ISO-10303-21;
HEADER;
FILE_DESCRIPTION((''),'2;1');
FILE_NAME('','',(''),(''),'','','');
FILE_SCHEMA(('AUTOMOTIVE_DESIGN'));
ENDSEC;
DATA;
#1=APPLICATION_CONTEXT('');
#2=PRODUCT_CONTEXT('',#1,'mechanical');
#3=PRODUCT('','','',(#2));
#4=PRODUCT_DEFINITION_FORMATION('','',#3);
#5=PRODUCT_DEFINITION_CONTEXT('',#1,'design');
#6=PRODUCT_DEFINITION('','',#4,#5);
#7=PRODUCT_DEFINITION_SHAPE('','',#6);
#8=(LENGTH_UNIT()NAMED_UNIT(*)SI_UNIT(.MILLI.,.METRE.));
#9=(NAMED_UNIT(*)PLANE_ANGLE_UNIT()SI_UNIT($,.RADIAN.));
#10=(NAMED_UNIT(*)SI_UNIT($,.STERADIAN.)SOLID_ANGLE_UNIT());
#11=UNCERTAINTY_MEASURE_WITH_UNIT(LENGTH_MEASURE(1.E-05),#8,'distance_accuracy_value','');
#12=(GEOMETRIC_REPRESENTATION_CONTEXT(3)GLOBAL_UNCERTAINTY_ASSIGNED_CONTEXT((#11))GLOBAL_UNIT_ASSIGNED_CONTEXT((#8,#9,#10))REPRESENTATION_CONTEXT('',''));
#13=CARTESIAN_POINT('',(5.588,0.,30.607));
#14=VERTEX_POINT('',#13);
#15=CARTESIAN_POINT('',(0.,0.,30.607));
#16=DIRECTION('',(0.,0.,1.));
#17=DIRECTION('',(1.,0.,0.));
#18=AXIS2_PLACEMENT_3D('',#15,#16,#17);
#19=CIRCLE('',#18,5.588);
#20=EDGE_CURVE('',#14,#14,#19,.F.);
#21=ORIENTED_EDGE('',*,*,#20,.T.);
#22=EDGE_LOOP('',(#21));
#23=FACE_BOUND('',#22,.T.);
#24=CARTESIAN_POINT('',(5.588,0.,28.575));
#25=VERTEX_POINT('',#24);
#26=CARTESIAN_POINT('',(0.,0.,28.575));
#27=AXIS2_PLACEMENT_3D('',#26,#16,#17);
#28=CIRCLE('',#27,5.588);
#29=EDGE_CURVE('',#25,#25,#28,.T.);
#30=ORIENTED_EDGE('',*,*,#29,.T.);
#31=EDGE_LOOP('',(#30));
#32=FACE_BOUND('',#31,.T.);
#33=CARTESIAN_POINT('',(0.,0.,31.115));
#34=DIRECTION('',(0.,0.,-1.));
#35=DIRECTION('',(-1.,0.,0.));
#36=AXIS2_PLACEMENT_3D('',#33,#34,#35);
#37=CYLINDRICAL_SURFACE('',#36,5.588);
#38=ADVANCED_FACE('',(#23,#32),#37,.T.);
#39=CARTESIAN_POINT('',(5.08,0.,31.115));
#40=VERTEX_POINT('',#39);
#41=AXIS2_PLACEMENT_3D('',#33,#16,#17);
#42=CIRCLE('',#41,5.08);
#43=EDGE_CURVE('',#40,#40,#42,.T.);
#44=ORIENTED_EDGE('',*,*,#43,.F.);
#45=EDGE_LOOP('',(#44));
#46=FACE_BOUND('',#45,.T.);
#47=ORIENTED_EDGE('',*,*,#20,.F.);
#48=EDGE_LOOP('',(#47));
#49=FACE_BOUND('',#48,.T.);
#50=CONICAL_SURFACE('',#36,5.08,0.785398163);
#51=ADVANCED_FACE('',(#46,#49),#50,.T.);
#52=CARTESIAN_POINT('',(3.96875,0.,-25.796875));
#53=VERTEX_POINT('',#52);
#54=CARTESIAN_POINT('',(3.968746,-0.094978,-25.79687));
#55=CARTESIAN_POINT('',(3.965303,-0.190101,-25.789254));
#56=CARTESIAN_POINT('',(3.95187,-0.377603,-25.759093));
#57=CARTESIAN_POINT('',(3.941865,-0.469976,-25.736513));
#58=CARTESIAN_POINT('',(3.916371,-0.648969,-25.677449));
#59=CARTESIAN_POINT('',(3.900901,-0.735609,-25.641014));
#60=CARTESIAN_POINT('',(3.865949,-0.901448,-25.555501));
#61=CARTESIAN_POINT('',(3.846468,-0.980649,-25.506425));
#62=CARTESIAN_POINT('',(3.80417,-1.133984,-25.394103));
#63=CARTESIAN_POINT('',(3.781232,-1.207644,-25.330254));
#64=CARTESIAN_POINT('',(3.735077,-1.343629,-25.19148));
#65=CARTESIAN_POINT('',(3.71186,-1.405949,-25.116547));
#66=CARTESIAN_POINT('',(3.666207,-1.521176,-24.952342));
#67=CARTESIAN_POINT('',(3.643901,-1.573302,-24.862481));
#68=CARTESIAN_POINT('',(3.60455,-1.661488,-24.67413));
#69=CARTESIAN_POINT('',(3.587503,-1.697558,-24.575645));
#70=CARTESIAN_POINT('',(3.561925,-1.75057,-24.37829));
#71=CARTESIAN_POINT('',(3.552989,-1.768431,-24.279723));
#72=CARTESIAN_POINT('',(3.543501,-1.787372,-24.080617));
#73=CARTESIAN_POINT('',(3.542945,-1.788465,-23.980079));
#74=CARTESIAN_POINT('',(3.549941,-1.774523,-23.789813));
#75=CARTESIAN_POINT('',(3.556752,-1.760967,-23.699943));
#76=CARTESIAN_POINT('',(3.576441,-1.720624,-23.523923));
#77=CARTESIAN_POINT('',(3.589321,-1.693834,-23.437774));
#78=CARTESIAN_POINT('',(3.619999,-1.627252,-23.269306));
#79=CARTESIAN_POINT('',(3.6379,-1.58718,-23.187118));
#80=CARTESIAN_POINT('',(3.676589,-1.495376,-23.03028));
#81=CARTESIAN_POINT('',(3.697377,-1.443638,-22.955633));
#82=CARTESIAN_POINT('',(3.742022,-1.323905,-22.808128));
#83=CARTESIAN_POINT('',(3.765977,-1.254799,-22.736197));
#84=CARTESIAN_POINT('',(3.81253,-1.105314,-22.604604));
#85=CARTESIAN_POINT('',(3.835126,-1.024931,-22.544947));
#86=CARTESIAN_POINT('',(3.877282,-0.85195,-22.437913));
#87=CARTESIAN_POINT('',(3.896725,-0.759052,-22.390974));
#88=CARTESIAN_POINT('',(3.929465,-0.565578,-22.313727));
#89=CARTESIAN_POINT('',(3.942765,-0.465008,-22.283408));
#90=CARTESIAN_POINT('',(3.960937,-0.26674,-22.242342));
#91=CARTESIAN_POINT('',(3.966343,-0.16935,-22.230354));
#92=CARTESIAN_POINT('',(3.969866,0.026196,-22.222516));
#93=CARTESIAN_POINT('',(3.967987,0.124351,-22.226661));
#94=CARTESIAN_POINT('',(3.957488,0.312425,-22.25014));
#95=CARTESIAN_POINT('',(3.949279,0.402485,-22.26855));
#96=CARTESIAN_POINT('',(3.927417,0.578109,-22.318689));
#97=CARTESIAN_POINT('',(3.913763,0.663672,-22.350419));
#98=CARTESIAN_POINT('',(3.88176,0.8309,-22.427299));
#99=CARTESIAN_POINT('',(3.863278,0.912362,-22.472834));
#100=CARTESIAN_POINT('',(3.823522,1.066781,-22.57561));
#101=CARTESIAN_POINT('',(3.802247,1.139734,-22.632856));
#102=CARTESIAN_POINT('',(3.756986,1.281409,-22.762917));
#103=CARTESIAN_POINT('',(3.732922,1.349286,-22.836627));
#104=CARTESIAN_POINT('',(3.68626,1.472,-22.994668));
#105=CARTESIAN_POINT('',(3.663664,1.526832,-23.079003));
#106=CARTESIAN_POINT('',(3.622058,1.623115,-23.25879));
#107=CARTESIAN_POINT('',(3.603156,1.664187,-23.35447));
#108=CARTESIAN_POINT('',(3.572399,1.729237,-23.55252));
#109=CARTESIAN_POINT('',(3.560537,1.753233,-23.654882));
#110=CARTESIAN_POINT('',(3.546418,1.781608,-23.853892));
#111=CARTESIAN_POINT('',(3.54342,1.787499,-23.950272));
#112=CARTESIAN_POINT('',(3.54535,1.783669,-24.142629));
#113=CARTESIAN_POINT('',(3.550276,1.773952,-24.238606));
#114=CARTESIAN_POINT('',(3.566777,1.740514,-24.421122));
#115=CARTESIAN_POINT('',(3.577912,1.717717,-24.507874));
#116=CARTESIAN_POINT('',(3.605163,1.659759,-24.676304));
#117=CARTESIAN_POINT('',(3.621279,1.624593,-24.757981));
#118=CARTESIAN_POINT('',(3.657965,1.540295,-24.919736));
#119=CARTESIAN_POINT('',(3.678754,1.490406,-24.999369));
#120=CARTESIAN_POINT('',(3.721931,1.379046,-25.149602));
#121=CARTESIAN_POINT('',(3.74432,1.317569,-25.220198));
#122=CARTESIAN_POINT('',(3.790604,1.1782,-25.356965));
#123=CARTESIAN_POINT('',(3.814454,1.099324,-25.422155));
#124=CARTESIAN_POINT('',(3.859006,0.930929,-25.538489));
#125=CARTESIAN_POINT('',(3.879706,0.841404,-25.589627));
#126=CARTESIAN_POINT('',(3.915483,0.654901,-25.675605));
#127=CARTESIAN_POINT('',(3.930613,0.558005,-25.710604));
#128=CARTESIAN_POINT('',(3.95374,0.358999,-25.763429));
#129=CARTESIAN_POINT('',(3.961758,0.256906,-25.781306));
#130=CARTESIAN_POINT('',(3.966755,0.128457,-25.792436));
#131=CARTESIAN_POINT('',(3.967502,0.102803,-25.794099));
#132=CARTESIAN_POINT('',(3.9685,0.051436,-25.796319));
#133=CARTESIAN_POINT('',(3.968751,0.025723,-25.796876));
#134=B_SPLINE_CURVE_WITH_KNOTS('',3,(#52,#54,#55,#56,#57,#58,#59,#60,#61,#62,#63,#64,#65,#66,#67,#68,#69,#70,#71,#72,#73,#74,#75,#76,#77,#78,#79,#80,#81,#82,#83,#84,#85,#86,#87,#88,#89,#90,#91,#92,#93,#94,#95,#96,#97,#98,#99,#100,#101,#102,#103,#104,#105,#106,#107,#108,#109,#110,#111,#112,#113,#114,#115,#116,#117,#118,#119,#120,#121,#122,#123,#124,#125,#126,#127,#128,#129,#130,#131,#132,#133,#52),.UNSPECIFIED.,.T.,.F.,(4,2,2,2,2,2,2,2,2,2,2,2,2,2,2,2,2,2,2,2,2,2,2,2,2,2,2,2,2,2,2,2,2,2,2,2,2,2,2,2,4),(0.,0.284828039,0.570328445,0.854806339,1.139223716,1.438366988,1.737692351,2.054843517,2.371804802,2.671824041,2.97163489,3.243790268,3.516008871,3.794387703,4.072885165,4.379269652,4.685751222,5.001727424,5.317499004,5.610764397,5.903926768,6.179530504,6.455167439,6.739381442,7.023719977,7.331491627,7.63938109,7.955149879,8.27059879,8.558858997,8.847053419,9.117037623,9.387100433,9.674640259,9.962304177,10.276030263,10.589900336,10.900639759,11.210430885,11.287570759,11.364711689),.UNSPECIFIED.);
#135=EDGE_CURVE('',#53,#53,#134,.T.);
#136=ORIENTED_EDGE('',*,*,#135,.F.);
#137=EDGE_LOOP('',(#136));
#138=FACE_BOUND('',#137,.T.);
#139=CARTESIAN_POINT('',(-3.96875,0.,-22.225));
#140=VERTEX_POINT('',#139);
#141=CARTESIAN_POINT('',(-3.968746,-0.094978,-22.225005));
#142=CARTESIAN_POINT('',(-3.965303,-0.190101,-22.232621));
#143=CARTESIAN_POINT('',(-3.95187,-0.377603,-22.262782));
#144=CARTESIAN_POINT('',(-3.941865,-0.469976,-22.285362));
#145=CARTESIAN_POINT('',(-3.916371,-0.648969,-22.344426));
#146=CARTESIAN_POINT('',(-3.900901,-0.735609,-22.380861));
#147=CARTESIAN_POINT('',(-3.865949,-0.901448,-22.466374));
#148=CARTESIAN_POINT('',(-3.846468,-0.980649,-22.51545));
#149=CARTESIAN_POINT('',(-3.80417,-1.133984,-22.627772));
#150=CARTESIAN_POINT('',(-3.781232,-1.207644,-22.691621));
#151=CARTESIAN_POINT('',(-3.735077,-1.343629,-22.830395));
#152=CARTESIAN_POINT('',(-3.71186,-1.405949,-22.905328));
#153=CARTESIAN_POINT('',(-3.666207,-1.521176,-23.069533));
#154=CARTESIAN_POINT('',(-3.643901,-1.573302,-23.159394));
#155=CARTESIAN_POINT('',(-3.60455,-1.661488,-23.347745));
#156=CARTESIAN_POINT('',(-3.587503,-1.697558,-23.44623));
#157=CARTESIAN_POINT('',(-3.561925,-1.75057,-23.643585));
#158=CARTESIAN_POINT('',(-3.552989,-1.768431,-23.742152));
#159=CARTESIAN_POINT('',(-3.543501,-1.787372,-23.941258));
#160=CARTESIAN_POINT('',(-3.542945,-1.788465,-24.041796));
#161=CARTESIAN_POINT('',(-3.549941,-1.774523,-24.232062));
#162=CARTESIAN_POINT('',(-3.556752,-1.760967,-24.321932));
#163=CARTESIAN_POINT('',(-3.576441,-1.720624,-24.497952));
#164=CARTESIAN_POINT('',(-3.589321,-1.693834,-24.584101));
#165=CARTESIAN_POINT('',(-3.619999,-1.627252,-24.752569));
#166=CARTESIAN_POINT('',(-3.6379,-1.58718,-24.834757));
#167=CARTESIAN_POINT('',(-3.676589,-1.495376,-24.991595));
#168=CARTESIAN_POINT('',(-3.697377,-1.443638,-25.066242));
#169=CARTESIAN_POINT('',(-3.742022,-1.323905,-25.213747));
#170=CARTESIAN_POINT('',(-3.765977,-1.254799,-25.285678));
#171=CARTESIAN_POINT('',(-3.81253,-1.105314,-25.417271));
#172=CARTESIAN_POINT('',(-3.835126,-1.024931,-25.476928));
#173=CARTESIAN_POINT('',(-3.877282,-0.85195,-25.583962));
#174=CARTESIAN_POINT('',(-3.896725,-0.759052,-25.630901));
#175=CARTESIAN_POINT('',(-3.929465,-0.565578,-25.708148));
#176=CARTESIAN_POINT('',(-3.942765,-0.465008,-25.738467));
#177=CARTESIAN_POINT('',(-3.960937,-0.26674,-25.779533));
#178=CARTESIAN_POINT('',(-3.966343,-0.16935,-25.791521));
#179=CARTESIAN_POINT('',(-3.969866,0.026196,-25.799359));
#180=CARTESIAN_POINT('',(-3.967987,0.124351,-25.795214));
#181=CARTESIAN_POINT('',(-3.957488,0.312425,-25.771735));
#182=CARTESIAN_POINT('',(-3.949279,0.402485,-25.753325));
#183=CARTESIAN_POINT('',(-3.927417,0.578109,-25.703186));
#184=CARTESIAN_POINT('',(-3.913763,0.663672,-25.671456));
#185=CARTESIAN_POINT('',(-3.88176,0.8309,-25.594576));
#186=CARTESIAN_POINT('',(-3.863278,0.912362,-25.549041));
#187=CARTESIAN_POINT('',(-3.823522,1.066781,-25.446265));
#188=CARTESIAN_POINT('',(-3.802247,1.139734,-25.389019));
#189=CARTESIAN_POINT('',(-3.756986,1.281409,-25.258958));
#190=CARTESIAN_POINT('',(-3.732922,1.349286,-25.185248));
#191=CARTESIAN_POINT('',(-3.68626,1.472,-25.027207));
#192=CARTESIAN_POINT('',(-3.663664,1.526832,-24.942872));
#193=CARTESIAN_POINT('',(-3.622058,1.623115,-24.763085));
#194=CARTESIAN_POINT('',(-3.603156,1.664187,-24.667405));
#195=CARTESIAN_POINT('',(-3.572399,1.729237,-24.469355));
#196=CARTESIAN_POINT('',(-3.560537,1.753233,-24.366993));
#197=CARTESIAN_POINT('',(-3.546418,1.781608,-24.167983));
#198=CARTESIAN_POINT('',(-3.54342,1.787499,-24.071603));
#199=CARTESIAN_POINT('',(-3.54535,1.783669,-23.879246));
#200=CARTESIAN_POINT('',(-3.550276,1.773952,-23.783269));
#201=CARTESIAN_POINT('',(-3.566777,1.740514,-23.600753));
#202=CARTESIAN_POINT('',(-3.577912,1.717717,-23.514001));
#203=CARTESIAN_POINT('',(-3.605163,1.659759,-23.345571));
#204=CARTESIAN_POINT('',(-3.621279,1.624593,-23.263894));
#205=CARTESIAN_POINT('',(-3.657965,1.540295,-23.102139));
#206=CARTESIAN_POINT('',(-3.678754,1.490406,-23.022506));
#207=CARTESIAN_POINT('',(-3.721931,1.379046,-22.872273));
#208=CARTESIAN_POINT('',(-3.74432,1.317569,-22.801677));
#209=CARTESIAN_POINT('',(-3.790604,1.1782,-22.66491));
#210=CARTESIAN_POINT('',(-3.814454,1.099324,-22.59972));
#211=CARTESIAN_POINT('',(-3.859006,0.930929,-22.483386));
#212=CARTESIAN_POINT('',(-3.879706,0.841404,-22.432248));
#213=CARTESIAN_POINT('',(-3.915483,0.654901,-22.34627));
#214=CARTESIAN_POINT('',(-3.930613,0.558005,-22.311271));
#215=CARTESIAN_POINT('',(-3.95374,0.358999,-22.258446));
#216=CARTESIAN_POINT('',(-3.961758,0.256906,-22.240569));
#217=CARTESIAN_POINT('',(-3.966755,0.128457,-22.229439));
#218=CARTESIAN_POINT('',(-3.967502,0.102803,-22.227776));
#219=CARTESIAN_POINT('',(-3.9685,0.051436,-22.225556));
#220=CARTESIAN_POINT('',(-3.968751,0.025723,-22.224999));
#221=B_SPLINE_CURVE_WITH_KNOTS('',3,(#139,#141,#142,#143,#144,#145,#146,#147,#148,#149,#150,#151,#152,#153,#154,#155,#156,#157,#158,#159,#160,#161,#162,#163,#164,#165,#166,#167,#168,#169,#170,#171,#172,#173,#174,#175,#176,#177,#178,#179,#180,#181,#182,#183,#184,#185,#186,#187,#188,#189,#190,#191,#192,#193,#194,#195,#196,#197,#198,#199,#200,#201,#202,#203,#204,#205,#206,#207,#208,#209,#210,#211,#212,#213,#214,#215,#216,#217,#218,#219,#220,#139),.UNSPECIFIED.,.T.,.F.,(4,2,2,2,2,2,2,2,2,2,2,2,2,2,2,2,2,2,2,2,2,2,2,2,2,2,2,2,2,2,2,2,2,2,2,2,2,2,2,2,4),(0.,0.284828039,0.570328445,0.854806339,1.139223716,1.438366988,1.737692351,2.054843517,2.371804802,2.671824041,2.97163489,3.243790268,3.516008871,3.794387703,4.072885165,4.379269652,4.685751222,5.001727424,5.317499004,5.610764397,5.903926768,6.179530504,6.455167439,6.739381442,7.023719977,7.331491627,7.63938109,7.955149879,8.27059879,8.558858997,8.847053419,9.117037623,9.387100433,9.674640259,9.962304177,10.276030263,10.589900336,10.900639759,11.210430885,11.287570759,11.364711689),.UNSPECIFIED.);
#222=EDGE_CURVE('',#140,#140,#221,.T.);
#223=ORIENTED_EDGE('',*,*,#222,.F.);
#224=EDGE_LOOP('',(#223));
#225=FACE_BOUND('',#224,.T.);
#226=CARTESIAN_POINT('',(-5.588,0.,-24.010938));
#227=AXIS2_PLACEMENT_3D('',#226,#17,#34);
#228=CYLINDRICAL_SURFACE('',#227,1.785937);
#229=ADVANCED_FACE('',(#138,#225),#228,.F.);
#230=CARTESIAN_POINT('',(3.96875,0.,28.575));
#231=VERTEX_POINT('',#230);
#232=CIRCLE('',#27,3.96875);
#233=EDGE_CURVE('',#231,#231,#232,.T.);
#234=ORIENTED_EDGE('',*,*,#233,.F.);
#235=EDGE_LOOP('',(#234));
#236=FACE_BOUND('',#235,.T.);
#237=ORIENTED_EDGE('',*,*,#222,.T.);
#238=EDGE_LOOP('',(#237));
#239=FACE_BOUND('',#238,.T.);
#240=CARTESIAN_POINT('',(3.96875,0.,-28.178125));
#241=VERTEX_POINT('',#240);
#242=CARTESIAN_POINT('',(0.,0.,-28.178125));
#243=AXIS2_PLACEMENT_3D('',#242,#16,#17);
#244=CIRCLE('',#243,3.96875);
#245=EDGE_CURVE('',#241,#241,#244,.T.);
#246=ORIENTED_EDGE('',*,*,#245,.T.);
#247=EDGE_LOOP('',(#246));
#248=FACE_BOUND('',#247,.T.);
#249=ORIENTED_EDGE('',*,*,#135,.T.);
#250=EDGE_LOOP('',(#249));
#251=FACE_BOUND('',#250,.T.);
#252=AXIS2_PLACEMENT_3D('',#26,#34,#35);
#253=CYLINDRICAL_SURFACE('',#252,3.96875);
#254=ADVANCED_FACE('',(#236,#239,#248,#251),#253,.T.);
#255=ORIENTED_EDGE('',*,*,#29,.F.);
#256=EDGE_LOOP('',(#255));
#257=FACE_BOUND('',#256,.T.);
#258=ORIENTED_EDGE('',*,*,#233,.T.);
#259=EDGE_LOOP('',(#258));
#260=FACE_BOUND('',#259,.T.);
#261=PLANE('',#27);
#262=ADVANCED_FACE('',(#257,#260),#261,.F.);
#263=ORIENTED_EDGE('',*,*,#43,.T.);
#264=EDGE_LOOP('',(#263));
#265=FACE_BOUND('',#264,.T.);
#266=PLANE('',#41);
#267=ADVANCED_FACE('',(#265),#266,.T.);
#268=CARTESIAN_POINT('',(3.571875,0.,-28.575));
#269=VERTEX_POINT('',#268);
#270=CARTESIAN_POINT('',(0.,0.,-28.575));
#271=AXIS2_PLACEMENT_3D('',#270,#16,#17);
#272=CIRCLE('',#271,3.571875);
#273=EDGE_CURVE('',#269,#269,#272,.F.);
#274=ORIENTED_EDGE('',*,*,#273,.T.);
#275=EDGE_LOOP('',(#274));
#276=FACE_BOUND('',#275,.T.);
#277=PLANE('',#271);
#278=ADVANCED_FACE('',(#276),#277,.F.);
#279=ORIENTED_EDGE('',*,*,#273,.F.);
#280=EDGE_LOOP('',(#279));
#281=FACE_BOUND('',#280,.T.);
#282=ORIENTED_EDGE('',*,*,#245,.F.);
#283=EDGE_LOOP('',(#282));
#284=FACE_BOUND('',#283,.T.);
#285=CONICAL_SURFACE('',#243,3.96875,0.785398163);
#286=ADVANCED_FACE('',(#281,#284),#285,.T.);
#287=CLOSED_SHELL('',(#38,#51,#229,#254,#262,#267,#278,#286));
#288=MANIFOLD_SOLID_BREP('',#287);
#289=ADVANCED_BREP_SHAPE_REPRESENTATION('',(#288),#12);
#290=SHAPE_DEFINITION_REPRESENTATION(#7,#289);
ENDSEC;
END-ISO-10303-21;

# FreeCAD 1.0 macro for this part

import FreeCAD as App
import Part
import Sketcher
Q = App.Units.Quantity


def edges_at(feature, points):
    """Names of the edges that pass closest to the given points."""
    edges = feature.Shape.Edges
    near = lambda p: min(range(len(edges)), key=lambda i: edges[i].distToShape(Part.Vertex(*p))[0])
    return sorted({f"Edge{near(p) + 1}" for p in points})

doc = App.newDocument("Part")
body = doc.addObject("PartDesign::Body", "Body")

sketch1 = doc.addObject("Sketcher::SketchObject", "Sketch")
body.addObject(sketch1)
sketch1.AttachmentSupport = (doc.XY_Plane, [""])
sketch1.MapMode = "FlatFace"
sketch1.addGeometry(Part.Circle(App.Vector(0, 0, 0), App.Vector(0, 0, 1), 4), False)
sketch1.addConstraint([
    Sketcher.Constraint("Coincident", 0, 3, -1, 1),
    Sketcher.Constraint("Diameter", 0, Q("0.3125 in")),
])
pad1 = doc.addObject("PartDesign::Pad", "Pad")
body.addObject(pad1)
pad1.Profile = sketch1
pad1.Length = Q("2.25 in")
pad1.Midplane = True

sketch2 = doc.addObject("Sketcher::SketchObject", "Sketch001")
body.addObject(sketch2)
sketch2.AttachmentSupport = (doc.XY_Plane, [""])
sketch2.MapMode = "FlatFace"
sketch2.AttachmentOffset = App.Placement(App.Vector(0, 0, 1.125 * 25.4), App.Rotation())
sketch2.addGeometry(Part.Circle(App.Vector(0, 0, 0), App.Vector(0, 0, 1), 6), False)
sketch2.addConstraint([
    Sketcher.Constraint("Coincident", 0, 3, -1, 1),
    Sketcher.Constraint("Diameter", 0, Q("0.44 in")),
])
pad2 = doc.addObject("PartDesign::Pad", "Pad001")
body.addObject(pad2)
pad2.Profile = sketch2
pad2.Length = Q("0.1 in")
doc.recompute()

chamfer = doc.addObject("PartDesign::Chamfer", "Chamfer")
body.addObject(chamfer)
chamfer.Base = (pad2, edges_at(pad2, [(-5.588, 0, 31.115)]))
chamfer.Size = Q("0.02 in")

sketch3 = doc.addObject("Sketcher::SketchObject", "Sketch002")
body.addObject(sketch3)
sketch3.AttachmentSupport = (doc.YZ_Plane, [""])
sketch3.MapMode = "FlatFace"
sketch3.addGeometry(Part.Circle(App.Vector(0, -24, 0), App.Vector(0, 0, 1), 1.8), False)
sketch3.addConstraint([
    Sketcher.Constraint("PointOnObject", 0, 3, -2),
    Sketcher.Constraint("Diameter", 0, Q("0.140625 in")),
    Sketcher.Constraint("DistanceY", 0, 3, -1, 1, 24.010938),
])
pocket1 = doc.addObject("PartDesign::Pocket", "Pocket")
body.addObject(pocket1)
pocket1.Profile = sketch3
pocket1.Type = "ThroughAll"
pocket1.Midplane = True
doc.recompute()

chamfer2 = doc.addObject("PartDesign::Chamfer", "Chamfer001")
body.addObject(chamfer2)
chamfer2.Base = (pocket1, edges_at(pocket1, [(-3.969, 0, -28.575)]))
chamfer2.Size = Q("0.015625 in")

doc.recompute()
